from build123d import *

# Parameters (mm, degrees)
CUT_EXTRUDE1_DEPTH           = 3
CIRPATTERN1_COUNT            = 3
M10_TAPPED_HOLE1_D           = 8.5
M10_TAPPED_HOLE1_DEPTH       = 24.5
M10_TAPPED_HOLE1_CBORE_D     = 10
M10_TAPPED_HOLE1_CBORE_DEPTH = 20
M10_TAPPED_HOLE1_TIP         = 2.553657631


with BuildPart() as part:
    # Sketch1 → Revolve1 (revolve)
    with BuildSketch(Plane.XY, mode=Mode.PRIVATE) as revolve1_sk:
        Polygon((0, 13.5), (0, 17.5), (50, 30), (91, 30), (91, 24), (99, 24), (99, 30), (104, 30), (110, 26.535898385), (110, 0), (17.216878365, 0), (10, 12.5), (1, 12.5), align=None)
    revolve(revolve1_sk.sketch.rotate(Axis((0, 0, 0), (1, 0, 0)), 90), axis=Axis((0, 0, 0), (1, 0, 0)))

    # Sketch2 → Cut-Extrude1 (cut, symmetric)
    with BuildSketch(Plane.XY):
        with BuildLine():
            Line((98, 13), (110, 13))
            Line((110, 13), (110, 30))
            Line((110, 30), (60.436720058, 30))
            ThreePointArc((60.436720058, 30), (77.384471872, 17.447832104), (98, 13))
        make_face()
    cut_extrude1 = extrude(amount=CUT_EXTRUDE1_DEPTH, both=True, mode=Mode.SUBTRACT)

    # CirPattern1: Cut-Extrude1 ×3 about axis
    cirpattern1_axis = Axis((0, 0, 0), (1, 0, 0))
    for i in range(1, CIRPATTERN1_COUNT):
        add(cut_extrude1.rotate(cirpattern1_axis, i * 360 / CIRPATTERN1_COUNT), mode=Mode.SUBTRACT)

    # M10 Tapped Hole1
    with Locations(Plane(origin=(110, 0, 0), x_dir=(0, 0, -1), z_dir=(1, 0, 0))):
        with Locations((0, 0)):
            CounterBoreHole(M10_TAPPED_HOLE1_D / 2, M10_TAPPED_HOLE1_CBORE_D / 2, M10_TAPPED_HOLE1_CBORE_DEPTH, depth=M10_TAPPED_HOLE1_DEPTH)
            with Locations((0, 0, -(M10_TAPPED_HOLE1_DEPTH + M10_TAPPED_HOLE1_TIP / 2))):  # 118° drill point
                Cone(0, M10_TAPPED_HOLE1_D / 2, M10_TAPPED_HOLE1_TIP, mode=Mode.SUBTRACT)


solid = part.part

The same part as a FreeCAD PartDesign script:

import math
import FreeCAD as App
import Part
import Sketcher

V = App.Vector
Q = App.Units.Quantity

doc = App.newDocument("Part")
body = doc.addObject("PartDesign::Body", "Body")

# Sketch on XY plane
sketch1 = body.newObject("Sketcher::SketchObject", "Sketch")
sketch1.AttachmentSupport = (doc.getObject("XY_Plane"), [""])
sketch1.MapMode = "FlatFace"
sketch1.addGeometry(Part.LineSegment(V(0, 17.5, 0), V(0, 13.5, 0)), False)
sketch1.addGeometry(Part.LineSegment(V(0, 13.5, 0), V(1, 12.5, 0)), False)
sketch1.addGeometry(Part.LineSegment(V(1, 12.5, 0), V(10, 12.5, 0)), False)
sketch1.addGeometry(Part.LineSegment(V(10, 12.5, 0), V(17.2, 0, 0)), False)
sketch1.addGeometry(Part.LineSegment(V(17.2, 0, 0), V(110, 0, 0)), False)
sketch1.addGeometry(Part.LineSegment(V(110, 0, 0), V(110, 26.5, 0)), False)
sketch1.addGeometry(Part.LineSegment(V(110, 26.5, 0), V(104, 30, 0)), False)
sketch1.addGeometry(Part.LineSegment(V(104, 30, 0), V(99, 30, 0)), False)
sketch1.addGeometry(Part.LineSegment(V(99, 30, 0), V(99, 24, 0)), False)
sketch1.addGeometry(Part.LineSegment(V(99, 24, 0), V(91, 24, 0)), False)
sketch1.addGeometry(Part.LineSegment(V(91, 24, 0), V(91, 30, 0)), False)
sketch1.addGeometry(Part.LineSegment(V(91, 30, 0), V(50, 30, 0)), False)
sketch1.addGeometry(Part.LineSegment(V(50, 30, 0), V(0, 17.5, 0)), False)
sketch1.addConstraint(Sketcher.Constraint("Coincident", 0, 2, 1, 1))
sketch1.addConstraint(Sketcher.Constraint("Coincident", 1, 2, 2, 1))
sketch1.addConstraint(Sketcher.Constraint("Coincident", 2, 2, 3, 1))
sketch1.addConstraint(Sketcher.Constraint("Coincident", 3, 2, 4, 1))
sketch1.addConstraint(Sketcher.Constraint("Coincident", 4, 2, 5, 1))
sketch1.addConstraint(Sketcher.Constraint("Coincident", 5, 2, 6, 1))
sketch1.addConstraint(Sketcher.Constraint("Coincident", 6, 2, 7, 1))
sketch1.addConstraint(Sketcher.Constraint("Coincident", 7, 2, 8, 1))
sketch1.addConstraint(Sketcher.Constraint("Coincident", 8, 2, 9, 1))
sketch1.addConstraint(Sketcher.Constraint("Coincident", 9, 2, 10, 1))
sketch1.addConstraint(Sketcher.Constraint("Coincident", 10, 2, 11, 1))
sketch1.addConstraint(Sketcher.Constraint("Coincident", 11, 2, 12, 1))
sketch1.addConstraint(Sketcher.Constraint("Coincident", 12, 2, 0, 1))
sketch1.addConstraint(Sketcher.Constraint("Vertical", 0))
sketch1.addConstraint(Sketcher.Constraint("Horizontal", 2))
sketch1.addConstraint(Sketcher.Constraint("Horizontal", 4))
sketch1.addConstraint(Sketcher.Constraint("Vertical", 5))
sketch1.addConstraint(Sketcher.Constraint("Horizontal", 7))
sketch1.addConstraint(Sketcher.Constraint("Vertical", 8))
sketch1.addConstraint(Sketcher.Constraint("Horizontal", 9))
sketch1.addConstraint(Sketcher.Constraint("Vertical", 10))
sketch1.addConstraint(Sketcher.Constraint("Horizontal", 11))
sketch1.addConstraint(Sketcher.Constraint("PointOnObject", 0, 2, -2))
sketch1.addConstraint(Sketcher.Constraint("PointOnObject", 3, 2, -1))
sketch1.addConstraint(Sketcher.Constraint("Horizontal", 7, 2, 10, 2))
sketch1.addConstraint(Sketcher.Constraint("DistanceX", 2, 1, 2, 2, 9.0))
sketch1.addConstraint(Sketcher.Constraint("DistanceX", 7, 2, 7, 1, 5.0))
sketch1.addConstraint(Sketcher.Constraint("DistanceX", 9, 2, 9, 1, 8.0))
sketch1.addConstraint(Sketcher.Constraint("DistanceX", 11, 2, 11, 1, 41.0))
sketch1.addConstraint(Sketcher.Constraint("DistanceY", 0, 2, 0, 1, 4.0))
sketch1.addConstraint(Sketcher.Constraint("DistanceY", 8, 2, 8, 1, 6.0))
sketch1.addConstraint(Sketcher.Constraint("Angle", 1, Q("-45 deg")))
sketch1.addConstraint(Sketcher.Constraint("Angle", 3, Q("-60 deg")))
sketch1.addConstraint(Sketcher.Constraint("Angle", 6, Q("150 deg")))
sketch1.addConstraint(Sketcher.Constraint("DistanceX", -1, 1, 1, 2, 1.0))
sketch1.addConstraint(Sketcher.Constraint("DistanceX", -1, 1, 4, 2, 110.0))
sketch1.addConstraint(Sketcher.Constraint("DistanceX", -1, 1, 6, 2, 104.0))
sketch1.addConstraint(Sketcher.Constraint("DistanceY", -1, 1, 6, 2, 30.0))
sketch1.addConstraint(Sketcher.Constraint("DistanceY", -1, 1, 0, 2, 13.5))
revolution = body.newObject("PartDesign::Revolution", "Revolution")
revolution.Profile = sketch1
revolution.ReferenceAxis = (sketch1, ["H_Axis"])
revolution.Angle = 360

# Sketch on XY plane
sketch2 = body.newObject("Sketcher::SketchObject", "Sketch001")
sketch2.AttachmentSupport = (doc.getObject("XY_Plane"), [""])
sketch2.MapMode = "FlatFace"
sketch2.addGeometry(Part.LineSegment(V(98, 13, 0), V(110, 13, 0)), False)
sketch2.addGeometry(Part.LineSegment(V(110, 13, 0), V(110, 30, 0)), False)
sketch2.addGeometry(Part.LineSegment(V(110, 30, 0), V(60, 30, 0)), False)
sketch2.addGeometry(Part.ArcOfCircle(Part.Circle(V(98, 63, 0), V(0, 0, 1), 50), math.radians(-139), math.radians(-90)), False)
sketch2.addConstraint(Sketcher.Constraint("Coincident", 0, 2, 1, 1))
sketch2.addConstraint(Sketcher.Constraint("Coincident", 1, 2, 2, 1))
sketch2.addConstraint(Sketcher.Constraint("Coincident", 2, 2, 3, 1))
sketch2.addConstraint(Sketcher.Constraint("Tangent", 3, 2, 0, 1))
sketch2.addConstraint(Sketcher.Constraint("Horizontal", 0))
sketch2.addConstraint(Sketcher.Constraint("Vertical", 1))
sketch2.addConstraint(Sketcher.Constraint("Horizontal", 2))
sketch2.addConstraint(Sketcher.Constraint("Radius", 3, 50.0))
sketch2.addConstraint(Sketcher.Constraint("DistanceX", 0, 1, 0, 2, 12.0))
sketch2.addConstraint(Sketcher.Constraint("DistanceY", 1, 1, 1, 2, 17.0))
sketch2.addConstraint(Sketcher.Constraint("DistanceX", -1, 1, 3, 3, 98.0))
sketch2.addConstraint(Sketcher.Constraint("DistanceY", -1, 1, 3, 3, 63.0))
pocket1 = body.newObject("PartDesign::Pocket", "Pocket")
pocket1.Profile = sketch2
pocket1.Length = 6
pocket1.Midplane = True
doc.recompute()

polarpattern = body.newObject("PartDesign::PolarPattern", "PolarPattern")
polarpattern.Originals = [pocket1]
polarpattern.Axis = (doc.getObject("X_Axis"), [""])
polarpattern.Angle = 360
polarpattern.Occurrences = 3
body.Tip = polarpattern

# Sketch on YZ plane
sketch3 = body.newObject("Sketcher::SketchObject", "Sketch002")
sketch3.AttachmentSupport = (doc.getObject("YZ_Plane"), [""])
sketch3.MapMode = "FlatFace"
sketch3.AttachmentOffset = App.Placement(V(0, 0, 110), App.Rotation())
sketch3.addGeometry(Part.Circle(V(0, 0, 0), V(0, 0, 1), 4.2), False)
sketch3.addConstraint(Sketcher.Constraint("Coincident", 0, 3, -1, 1))
sketch3.addConstraint(Sketcher.Constraint("Diameter", 0, 8.5))
doc.recompute()
hole = body.newObject("PartDesign::Hole", "Hole")
hole.Profile = sketch3
hole.ThreadType = "None"
hole.Diameter = 8.5
hole.DepthType = "Dimension"
hole.Depth = 24.5
hole.DrillPoint = "Angled"
hole.DrillPointAngle = 118
hole.HoleCutType = "Counterbore"
hole.HoleCutDiameter = 10
hole.HoleCutDepth = 20

doc.recompute()
